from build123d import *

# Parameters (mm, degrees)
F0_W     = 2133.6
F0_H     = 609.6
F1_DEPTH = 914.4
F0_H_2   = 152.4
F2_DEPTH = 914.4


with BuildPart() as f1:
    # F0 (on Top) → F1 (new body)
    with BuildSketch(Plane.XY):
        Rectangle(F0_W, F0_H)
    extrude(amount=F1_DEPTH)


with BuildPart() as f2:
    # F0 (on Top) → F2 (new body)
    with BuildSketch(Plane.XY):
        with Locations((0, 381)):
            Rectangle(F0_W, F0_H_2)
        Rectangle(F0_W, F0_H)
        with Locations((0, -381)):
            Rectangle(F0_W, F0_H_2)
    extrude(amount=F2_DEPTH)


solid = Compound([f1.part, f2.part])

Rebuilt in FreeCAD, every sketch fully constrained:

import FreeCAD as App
import Part
import Sketcher
Q = App.Units.Quantity


def add_polygon(sketch, points):
    """Adds a closed chain of lines whose ends are joined by coincident constraints."""
    first, n = sketch.GeometryCount, len(points)
    for a, b in zip(points, points[1:] + points[:1]):
        sketch.addGeometry(Part.LineSegment(App.Vector(*a, 0), App.Vector(*b, 0)), False)
    for i in range(n):
        sketch.addConstraint(Sketcher.Constraint("Coincident", first + i, 2, first + (i + 1) % n, 1))

doc = App.newDocument("Part")
body = doc.addObject("PartDesign::Body", "Body")

sketch1 = body.newObject("Sketcher::SketchObject", "Sketch")
sketch1.AttachmentSupport = (doc.getObject("XY_Plane"), [""])
sketch1.MapMode = "FlatFace"
add_polygon(sketch1, [(-1066.8, 304.8), (-1066.8, -304.8), (1066.8, -304.8), (1066.8, 304.8)])
sketch1.addConstraint([
    Sketcher.Constraint("Vertical", 0),
    Sketcher.Constraint("Horizontal", 1),
    Sketcher.Constraint("Vertical", 2),
    Sketcher.Constraint("Horizontal", 3),
    Sketcher.Constraint("Symmetric", 0, 2, 2, 2, -1, 1),
    Sketcher.Constraint("DistanceX", 1, 1, 1, 2, Q("84 in")),
    Sketcher.Constraint("DistanceY", 0, 2, 0, 1, Q("24 in")),
])
pad1 = body.newObject("PartDesign::Pad", "Pad")
pad1.Profile = sketch1
pad1.Length = Q("36 in")
body2 = doc.addObject("PartDesign::Body", "Body001")

sketch2 = body2.newObject("Sketcher::SketchObject", "Sketch001")
sketch2.AttachmentSupport = (doc.getObject("XY_Plane001"), [""])
sketch2.MapMode = "FlatFace"
add_polygon(sketch2, [(-1066.8, 457.2), (-1066.8, -457.2), (1066.8, -457.2), (1066.8, 457.2)])
sketch2.addConstraint([
    Sketcher.Constraint("Vertical", 0),
    Sketcher.Constraint("Horizontal", 1),
    Sketcher.Constraint("Vertical", 2),
    Sketcher.Constraint("Horizontal", 3),
    Sketcher.Constraint("Symmetric", 0, 2, 2, 2, -1, 1),
    Sketcher.Constraint("DistanceX", 1, 1, 1, 2, Q("84 in")),
    Sketcher.Constraint("DistanceY", 0, 2, 0, 1, Q("36 in")),
])
pad2 = body2.newObject("PartDesign::Pad", "Pad001")
pad2.Profile = sketch2
pad2.Length = Q("36 in")

doc.recompute()
